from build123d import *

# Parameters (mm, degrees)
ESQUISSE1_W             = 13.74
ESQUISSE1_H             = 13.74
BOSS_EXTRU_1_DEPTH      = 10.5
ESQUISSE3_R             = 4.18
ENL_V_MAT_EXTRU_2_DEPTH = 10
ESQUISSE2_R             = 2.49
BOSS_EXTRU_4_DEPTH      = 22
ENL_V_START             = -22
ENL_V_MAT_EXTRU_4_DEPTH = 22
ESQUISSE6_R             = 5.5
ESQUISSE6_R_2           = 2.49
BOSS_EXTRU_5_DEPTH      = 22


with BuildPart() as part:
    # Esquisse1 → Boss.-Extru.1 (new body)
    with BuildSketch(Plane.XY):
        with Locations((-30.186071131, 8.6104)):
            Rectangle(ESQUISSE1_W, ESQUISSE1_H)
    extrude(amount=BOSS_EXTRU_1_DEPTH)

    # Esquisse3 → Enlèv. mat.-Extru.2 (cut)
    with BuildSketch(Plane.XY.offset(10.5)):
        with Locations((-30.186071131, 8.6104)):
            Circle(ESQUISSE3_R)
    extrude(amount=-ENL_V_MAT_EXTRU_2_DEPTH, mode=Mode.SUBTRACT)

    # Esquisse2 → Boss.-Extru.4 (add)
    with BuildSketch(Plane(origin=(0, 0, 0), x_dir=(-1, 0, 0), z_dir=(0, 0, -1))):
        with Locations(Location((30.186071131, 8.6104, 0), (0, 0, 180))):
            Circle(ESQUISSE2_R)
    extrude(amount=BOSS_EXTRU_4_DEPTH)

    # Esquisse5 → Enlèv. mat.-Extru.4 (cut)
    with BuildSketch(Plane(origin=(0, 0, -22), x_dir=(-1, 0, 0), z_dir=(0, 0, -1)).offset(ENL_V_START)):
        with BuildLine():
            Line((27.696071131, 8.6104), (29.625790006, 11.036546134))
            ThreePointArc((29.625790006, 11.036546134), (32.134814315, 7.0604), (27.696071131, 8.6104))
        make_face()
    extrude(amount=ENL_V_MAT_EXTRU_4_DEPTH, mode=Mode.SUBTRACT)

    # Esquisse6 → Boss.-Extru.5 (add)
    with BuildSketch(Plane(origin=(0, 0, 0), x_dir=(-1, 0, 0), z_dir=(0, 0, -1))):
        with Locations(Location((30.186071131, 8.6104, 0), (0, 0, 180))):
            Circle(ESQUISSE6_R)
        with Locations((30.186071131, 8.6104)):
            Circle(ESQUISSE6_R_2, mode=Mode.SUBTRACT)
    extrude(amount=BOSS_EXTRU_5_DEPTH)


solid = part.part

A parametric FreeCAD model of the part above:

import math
import FreeCAD as App
import Part
import Sketcher


def add_polygon(sketch, points):
    """Adds a closed chain of lines whose ends are joined by coincident constraints."""
    first, n = sketch.GeometryCount, len(points)
    for a, b in zip(points, points[1:] + points[:1]):
        sketch.addGeometry(Part.LineSegment(App.Vector(*a, 0), App.Vector(*b, 0)), False)
    for i in range(n):
        sketch.addConstraint(Sketcher.Constraint("Coincident", first + i, 2, first + (i + 1) % n, 1))

doc = App.newDocument("Part")
body = doc.addObject("PartDesign::Body", "Body")

# Sketch on XY plane
sketch1 = doc.addObject("Sketcher::SketchObject", "Sketch")
body.addObject(sketch1)
sketch1.AttachmentSupport = (doc.XY_Plane, [""])
sketch1.MapMode = "FlatFace"
add_polygon(sketch1, [(-37.056071, 15.4804), (-37.056071, 1.7404), (-23.316071, 1.7404), (-23.316071, 15.4804)])  # lines 0-3
sketch1.addConstraint([
    Sketcher.Constraint("Vertical", 0),
    Sketcher.Constraint("Horizontal", 1),
    Sketcher.Constraint("Vertical", 2),
    Sketcher.Constraint("Horizontal", 3),
    Sketcher.Constraint("Equal", 3, 0),
    Sketcher.Constraint("DistanceX", 1, 1, 1, 2, 13.74),
    Sketcher.Constraint("DistanceY", -1, 1, 0, 2, 1.7404),
    Sketcher.Constraint("DistanceX", 0, 2, -1, 1, 37.056071),
])
pad1 = doc.addObject("PartDesign::Pad", "Pad")
body.addObject(pad1)
pad1.Profile = sketch1
pad1.Length = 10.5

# Sketch on XY plane
sketch2 = doc.addObject("Sketcher::SketchObject", "Sketch001")
body.addObject(sketch2)
sketch2.AttachmentSupport = (doc.XY_Plane, [""])
sketch2.MapMode = "FlatFace"
sketch2.AttachmentOffset = App.Placement(App.Vector(0, 0, 10.5), App.Rotation())
sketch2.addGeometry(Part.Circle(App.Vector(-30.186071, 8.6104, 0), App.Vector(0, 0, 1), 4.18), False)
sketch2.addConstraint([
    Sketcher.Constraint("Diameter", 0, 8.36),
    Sketcher.Constraint("DistanceY", -1, 1, 0, 3, 8.6104),
    Sketcher.Constraint("DistanceX", 0, 3, -1, 1, 30.186071),
])
pocket1 = doc.addObject("PartDesign::Pocket", "Pocket")
body.addObject(pocket1)
pocket1.Profile = sketch2
pocket1.Length = 10

# Sketch on XY plane
sketch3 = doc.addObject("Sketcher::SketchObject", "Sketch002")
body.addObject(sketch3)
sketch3.AttachmentSupport = (doc.XY_Plane, [""])
sketch3.MapMode = "FlatFace"
sketch3.addGeometry(Part.Circle(App.Vector(-30.186071, 8.6104, 0), App.Vector(0, 0, 1), 2.49), False)
sketch3.addConstraint([
    Sketcher.Constraint("Diameter", 0, 4.98),
    Sketcher.Constraint("DistanceY", -1, 1, 0, 3, 8.6104),
    Sketcher.Constraint("DistanceX", 0, 3, -1, 1, 30.186071),
])
pad2 = doc.addObject("PartDesign::Pad", "Pad001")
body.addObject(pad2)
pad2.Profile = sketch3
pad2.Length = 22
pad2.Reversed = True

# Sketch on XY plane
sketch4 = doc.addObject("Sketcher::SketchObject", "Sketch003")
body.addObject(sketch4)
sketch4.AttachmentSupport = (doc.XY_Plane, [""])
sketch4.MapMode = "FlatFace"
sketch4.addGeometry([
    Part.LineSegment(App.Vector(-29.62579, 11.036546, 0), App.Vector(-27.696071, 8.6104, 0)),
    Part.ArcOfCircle(Part.Circle(App.Vector(-30.186071, 8.6104, 0), App.Vector(0, 0, 1), 2.49), math.radians(76.996387), math.radians(360)),
], False)
sketch4.addConstraint([
    Sketcher.Constraint("Coincident", 0, 1, 1, 1),
    Sketcher.Constraint("Coincident", 1, 2, 0, 2),
    Sketcher.Constraint("Radius", 1, 2.49),
    Sketcher.Constraint("Distance", 0, 3.1),
    Sketcher.Constraint("DistanceY", -1, 1, 1, 3, 8.6104),
    Sketcher.Constraint("DistanceY", -1, 1, 1, 2, 8.6104),
    Sketcher.Constraint("DistanceX", 1, 3, -1, 1, 30.186071),
])
pocket2 = doc.addObject("PartDesign::Pocket", "Pocket001")
body.addObject(pocket2)
pocket2.Profile = sketch4
pocket2.Length = 22

# Sketch on XY plane
sketch5 = doc.addObject("Sketcher::SketchObject", "Sketch004")
body.addObject(sketch5)
sketch5.AttachmentSupport = (doc.XY_Plane, [""])
sketch5.MapMode = "FlatFace"
sketch5.addGeometry([
    Part.Circle(App.Vector(-30.186071, 8.6104, 0), App.Vector(0, 0, 1), 5.5),
    Part.Circle(App.Vector(-30.186071, 8.6104, 0), App.Vector(0, 0, 1), 2.49),
], False)
sketch5.addConstraint([
    Sketcher.Constraint("Coincident", 1, 3, 0, 3),
    Sketcher.Constraint("Diameter", 0, 11.0),
    Sketcher.Constraint("Diameter", 1, 4.98),
    Sketcher.Constraint("DistanceY", -1, 1, 0, 3, 8.6104),
    Sketcher.Constraint("DistanceX", 0, 3, -1, 1, 30.186071),
])
pad3 = doc.addObject("PartDesign::Pad", "Pad002")
body.addObject(pad3)
pad3.Profile = sketch5
pad3.Length = 22
pad3.Reversed = True

doc.recompute()
